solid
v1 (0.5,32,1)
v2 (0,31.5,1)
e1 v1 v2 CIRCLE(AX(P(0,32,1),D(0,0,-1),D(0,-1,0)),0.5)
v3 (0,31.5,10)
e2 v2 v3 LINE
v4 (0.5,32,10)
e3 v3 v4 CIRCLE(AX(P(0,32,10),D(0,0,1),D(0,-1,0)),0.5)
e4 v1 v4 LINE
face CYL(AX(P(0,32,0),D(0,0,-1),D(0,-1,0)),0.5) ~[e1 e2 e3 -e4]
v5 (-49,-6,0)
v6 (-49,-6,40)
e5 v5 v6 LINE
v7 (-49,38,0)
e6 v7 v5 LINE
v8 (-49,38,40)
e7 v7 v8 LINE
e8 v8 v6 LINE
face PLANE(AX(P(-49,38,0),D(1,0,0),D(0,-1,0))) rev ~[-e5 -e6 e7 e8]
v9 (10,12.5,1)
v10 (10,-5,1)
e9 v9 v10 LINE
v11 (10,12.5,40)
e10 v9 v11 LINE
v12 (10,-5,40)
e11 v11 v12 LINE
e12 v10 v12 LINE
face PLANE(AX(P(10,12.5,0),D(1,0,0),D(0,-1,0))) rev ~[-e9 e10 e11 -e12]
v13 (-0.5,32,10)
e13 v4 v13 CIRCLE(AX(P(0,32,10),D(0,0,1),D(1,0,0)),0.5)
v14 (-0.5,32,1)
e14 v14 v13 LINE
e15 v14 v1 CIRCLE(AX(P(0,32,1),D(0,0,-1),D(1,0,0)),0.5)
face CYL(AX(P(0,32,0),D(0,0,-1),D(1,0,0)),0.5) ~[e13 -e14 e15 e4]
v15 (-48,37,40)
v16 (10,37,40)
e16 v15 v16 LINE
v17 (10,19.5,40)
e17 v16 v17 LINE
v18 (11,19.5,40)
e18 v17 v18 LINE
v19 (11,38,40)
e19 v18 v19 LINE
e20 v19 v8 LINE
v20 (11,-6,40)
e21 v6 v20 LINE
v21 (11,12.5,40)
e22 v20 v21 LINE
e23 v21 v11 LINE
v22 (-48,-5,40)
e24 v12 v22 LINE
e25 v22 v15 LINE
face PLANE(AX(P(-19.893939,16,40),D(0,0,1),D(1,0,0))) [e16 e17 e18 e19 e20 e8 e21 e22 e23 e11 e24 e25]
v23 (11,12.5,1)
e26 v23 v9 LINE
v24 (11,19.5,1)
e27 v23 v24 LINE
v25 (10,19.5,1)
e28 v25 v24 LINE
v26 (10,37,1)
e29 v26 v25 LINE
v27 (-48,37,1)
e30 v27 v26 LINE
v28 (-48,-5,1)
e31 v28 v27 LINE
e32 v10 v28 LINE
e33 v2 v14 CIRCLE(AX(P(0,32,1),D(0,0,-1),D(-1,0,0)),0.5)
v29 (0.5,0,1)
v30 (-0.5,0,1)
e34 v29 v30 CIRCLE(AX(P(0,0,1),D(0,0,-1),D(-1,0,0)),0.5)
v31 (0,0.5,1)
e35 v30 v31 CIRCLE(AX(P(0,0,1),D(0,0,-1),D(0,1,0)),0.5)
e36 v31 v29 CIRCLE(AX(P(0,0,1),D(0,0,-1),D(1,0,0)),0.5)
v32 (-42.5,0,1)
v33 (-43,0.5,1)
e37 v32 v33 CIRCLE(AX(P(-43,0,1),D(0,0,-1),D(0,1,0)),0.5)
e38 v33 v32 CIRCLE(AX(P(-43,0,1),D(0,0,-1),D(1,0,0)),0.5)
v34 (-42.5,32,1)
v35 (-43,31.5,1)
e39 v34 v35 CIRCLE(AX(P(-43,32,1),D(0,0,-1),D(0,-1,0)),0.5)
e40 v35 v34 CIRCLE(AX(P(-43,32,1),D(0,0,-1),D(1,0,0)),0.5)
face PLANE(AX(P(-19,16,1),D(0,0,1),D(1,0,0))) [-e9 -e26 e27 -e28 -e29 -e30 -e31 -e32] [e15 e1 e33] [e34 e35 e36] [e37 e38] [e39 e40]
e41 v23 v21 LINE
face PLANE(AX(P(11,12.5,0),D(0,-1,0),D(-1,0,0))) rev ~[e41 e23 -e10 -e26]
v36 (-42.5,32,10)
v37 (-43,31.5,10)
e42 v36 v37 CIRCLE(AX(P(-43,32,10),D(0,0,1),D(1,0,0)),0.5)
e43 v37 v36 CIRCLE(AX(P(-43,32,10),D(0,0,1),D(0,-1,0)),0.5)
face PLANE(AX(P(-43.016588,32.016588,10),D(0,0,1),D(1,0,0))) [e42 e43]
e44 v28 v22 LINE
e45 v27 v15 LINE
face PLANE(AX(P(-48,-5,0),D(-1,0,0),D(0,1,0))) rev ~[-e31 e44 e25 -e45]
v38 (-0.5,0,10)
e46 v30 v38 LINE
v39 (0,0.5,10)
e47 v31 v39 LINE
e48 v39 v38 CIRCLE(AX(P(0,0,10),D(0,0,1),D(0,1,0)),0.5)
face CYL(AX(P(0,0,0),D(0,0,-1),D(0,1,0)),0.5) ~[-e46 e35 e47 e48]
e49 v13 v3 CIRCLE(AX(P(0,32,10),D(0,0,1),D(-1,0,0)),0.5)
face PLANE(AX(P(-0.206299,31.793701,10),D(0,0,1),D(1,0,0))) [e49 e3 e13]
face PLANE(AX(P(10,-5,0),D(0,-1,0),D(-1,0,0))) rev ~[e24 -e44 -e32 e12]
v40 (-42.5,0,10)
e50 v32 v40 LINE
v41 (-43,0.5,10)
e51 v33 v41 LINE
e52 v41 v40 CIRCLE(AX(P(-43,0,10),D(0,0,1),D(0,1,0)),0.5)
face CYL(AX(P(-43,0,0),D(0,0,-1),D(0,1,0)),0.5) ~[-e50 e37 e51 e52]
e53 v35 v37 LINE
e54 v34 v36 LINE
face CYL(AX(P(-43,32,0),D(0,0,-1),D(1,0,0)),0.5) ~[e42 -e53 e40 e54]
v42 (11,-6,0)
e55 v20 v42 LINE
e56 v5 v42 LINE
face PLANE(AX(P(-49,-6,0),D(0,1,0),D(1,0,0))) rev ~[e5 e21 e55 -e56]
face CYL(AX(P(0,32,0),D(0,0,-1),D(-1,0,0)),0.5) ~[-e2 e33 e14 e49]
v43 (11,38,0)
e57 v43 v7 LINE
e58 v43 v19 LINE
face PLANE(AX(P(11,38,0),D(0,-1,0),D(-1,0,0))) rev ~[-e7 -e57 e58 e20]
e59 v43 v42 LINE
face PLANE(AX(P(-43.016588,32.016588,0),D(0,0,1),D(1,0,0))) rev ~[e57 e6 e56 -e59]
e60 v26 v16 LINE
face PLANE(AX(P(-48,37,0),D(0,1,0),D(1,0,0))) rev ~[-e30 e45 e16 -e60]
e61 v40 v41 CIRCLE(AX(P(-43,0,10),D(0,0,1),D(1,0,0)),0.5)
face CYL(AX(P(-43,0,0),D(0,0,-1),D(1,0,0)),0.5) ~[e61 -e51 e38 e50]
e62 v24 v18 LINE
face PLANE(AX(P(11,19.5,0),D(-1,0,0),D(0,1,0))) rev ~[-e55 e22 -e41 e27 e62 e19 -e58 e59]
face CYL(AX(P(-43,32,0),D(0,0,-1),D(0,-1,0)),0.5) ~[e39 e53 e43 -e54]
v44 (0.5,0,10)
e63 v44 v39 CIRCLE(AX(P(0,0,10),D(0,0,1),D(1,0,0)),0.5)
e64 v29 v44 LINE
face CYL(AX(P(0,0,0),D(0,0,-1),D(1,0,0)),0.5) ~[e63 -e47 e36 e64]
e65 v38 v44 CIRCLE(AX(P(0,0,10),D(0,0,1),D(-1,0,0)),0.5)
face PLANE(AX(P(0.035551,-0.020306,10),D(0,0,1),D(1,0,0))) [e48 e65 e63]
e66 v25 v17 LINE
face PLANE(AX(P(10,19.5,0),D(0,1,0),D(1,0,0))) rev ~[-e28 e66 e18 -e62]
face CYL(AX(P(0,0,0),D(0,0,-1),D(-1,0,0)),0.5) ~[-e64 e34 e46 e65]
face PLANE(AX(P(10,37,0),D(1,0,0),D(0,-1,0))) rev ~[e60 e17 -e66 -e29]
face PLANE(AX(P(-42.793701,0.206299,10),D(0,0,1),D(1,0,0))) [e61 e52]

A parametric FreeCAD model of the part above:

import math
import FreeCAD as App
import Part
import Sketcher

V = App.Vector
Q = App.Units.Quantity


def add_polygon(sketch, points):
    """Adds a closed chain of lines whose ends are joined by coincident constraints."""
    first, n = sketch.GeometryCount, len(points)
    for a, b in zip(points, points[1:] + points[:1]):
        sketch.addGeometry(Part.LineSegment(App.Vector(*a, 0), App.Vector(*b, 0)), False)
    for i in range(n):
        sketch.addConstraint(Sketcher.Constraint("Coincident", first + i, 2, first + (i + 1) % n, 1))

doc = App.newDocument("Part")
params = doc.addObject("Spreadsheet::Sheet", "Params")
for row, (alias, value) in enumerate([
    ("sketch1_width", "58 mm"),
    ("sketch1_width2", "1 mm"),
    ("sketch1_width3", "60 mm"),
    ("sketch1_height", "42 mm"),
    ("sketch1_height2", "44 mm"),
    ("pad1_length", "40 mm"),
    ("sketch2_width", "60 mm"),
    ("sketch2_height", "44 mm"),
    ("pad2_length", "1 mm"),
    ("sketch3_radius", "0.5 mm"),
    ("pad3_length", "10 mm"),
], start=1):
    params.set(f"A{row}", alias)
    params.set(f"B{row}", "=" + value)
    params.setAlias(f"B{row}", alias)

body = doc.addObject("PartDesign::Body", "Body")

sketch1 = body.newObject("Sketcher::SketchObject", "Sketch")
sketch1.AttachmentSupport = (doc.getObject("XY_Plane"), [""])
sketch1.MapMode = "FlatFace"
add_polygon(sketch1, [(10, -5), (-48, -5), (-48, 37), (10, 37), (10, 19.5), (11, 19.5), (11, 38), (-49, 38), (-49, -6), (11, -6), (11, 12.5), (10, 12.5)])
sketch1.addConstraint([
    Sketcher.Constraint("Horizontal", 0),
    Sketcher.Constraint("Vertical", 1),
    Sketcher.Constraint("Horizontal", 2),
    Sketcher.Constraint("Vertical", 3),
    Sketcher.Constraint("Horizontal", 4),
    Sketcher.Constraint("Vertical", 5),
    Sketcher.Constraint("Horizontal", 6),
    Sketcher.Constraint("Vertical", 7),
    Sketcher.Constraint("Horizontal", 8),
    Sketcher.Constraint("Vertical", 9),
    Sketcher.Constraint("Horizontal", 10),
    Sketcher.Constraint("Vertical", 11),
    Sketcher.Constraint("Vertical", 5, 2, 8, 2),
    Sketcher.Constraint("Vertical", 3, 2, 10, 2),
    Sketcher.Constraint("Equal", 5, 9),
    Sketcher.Constraint("Equal", 3, 11),
    Sketcher.Constraint("DistanceX", 0, 2, 0, 1, Q("58 mm")),
    Sketcher.Constraint("DistanceX", 4, 1, 4, 2, Q("1 mm")),
    Sketcher.Constraint("DistanceX", 6, 2, 6, 1, Q("60 mm")),
    Sketcher.Constraint("DistanceY", 1, 1, 1, 2, Q("42 mm")),
    Sketcher.Constraint("DistanceY", 7, 2, 7, 1, Q("44 mm")),
    Sketcher.Constraint("DistanceY", 3, 2, 3, 1, Q("17.5 mm")),
    Sketcher.Constraint("DistanceX", 0, 2, -1, 1, Q("48 mm")),
    Sketcher.Constraint("DistanceY", 0, 2, -1, 1, Q("5 mm")),
])
sketch1.setExpression("Constraints[28]", "Params.sketch1_width")
sketch1.setExpression("Constraints[29]", "Params.sketch1_width2")
sketch1.setExpression("Constraints[30]", "Params.sketch1_width3")
sketch1.setExpression("Constraints[31]", "Params.sketch1_height")
sketch1.setExpression("Constraints[32]", "Params.sketch1_height2")
pad1 = body.newObject("PartDesign::Pad", "Pad")
pad1.Profile = sketch1
pad1.setExpression("Length", "Params.pad1_length")

sketch2 = body.newObject("Sketcher::SketchObject", "Sketch001")
sketch2.AttachmentSupport = (doc.getObject("XY_Plane"), [""])
sketch2.MapMode = "FlatFace"
add_polygon(sketch2, [(11, 38), (-49, 38), (-49, -6), (11, -6)])
sketch2.addConstraint([
    Sketcher.Constraint("Horizontal", 0),
    Sketcher.Constraint("Vertical", 1),
    Sketcher.Constraint("Horizontal", 2),
    Sketcher.Constraint("Vertical", 3),
    Sketcher.Constraint("DistanceX", 0, 2, 0, 1, Q("60 mm")),
    Sketcher.Constraint("DistanceY", 1, 2, 1, 1, Q("44 mm")),
    Sketcher.Constraint("DistanceX", 0, 2, -1, 1, Q("49 mm")),
    Sketcher.Constraint("DistanceY", -1, 1, 0, 2, Q("38 mm")),
])
sketch2.setExpression("Constraints[8]", "Params.sketch2_width")
sketch2.setExpression("Constraints[9]", "Params.sketch2_height")
pad2 = body.newObject("PartDesign::Pad", "Pad001")
pad2.Profile = sketch2
pad2.setExpression("Length", "Params.pad2_length")

sketch3 = body.newObject("Sketcher::SketchObject", "Sketch002")
sketch3.AttachmentSupport = (doc.getObject("XY_Plane"), [""])
sketch3.MapMode = "FlatFace"
sketch3.addGeometry([
    Part.ArcOfCircle(Part.Circle(V(-43, 32, 0), V(0, 0, 1), 0.5), math.radians(0), math.radians(270)),
    Part.ArcOfCircle(Part.Circle(V(-43, 32, 0), V(0, 0, 1), 0.5), math.radians(-90), math.radians(0)),
    Part.ArcOfCircle(Part.Circle(V(0, 32, 0), V(0, 0, 1), 0.5), math.radians(180), math.radians(270)),
    Part.ArcOfCircle(Part.Circle(V(0, 32, 0), V(0, 0, 1), 0.5), math.radians(-90), math.radians(0)),
    Part.ArcOfCircle(Part.Circle(V(0, 32, 0), V(0, 0, 1), 0.5), math.radians(0), math.radians(180)),
    Part.ArcOfCircle(Part.Circle(V(0, 0, 0), V(0, 0, 1), 0.5), math.radians(180), math.radians(360)),
    Part.ArcOfCircle(Part.Circle(V(0, 0, 0), V(0, 0, 1), 0.5), math.radians(0), math.radians(90)),
    Part.ArcOfCircle(Part.Circle(V(0, 0, 0), V(0, 0, 1), 0.5), math.radians(90), math.radians(180)),
    Part.ArcOfCircle(Part.Circle(V(-43, 0, 0), V(0, 0, 1), 0.5), math.radians(0), math.radians(90)),
    Part.ArcOfCircle(Part.Circle(V(-43, 0, 0), V(0, 0, 1), 0.5), math.radians(90), math.radians(360)),
], False)
sketch3.addConstraint([
    Sketcher.Constraint("Tangent", 0, 1, 1, 2),
    Sketcher.Constraint("Coincident", 1, 1, 0, 2),
    Sketcher.Constraint("Tangent", 2, 2, 3, 1),
    Sketcher.Constraint("Tangent", 3, 2, 4, 1),
    Sketcher.Constraint("Tangent", 4, 2, 2, 1),
    Sketcher.Constraint("Tangent", 5, 2, 6, 1),
    Sketcher.Constraint("Tangent", 6, 2, 7, 1),
    Sketcher.Constraint("Tangent", 7, 2, 5, 1),
    Sketcher.Constraint("Tangent", 8, 1, 9, 2),
    Sketcher.Constraint("Coincident", 9, 1, 8, 2),
    Sketcher.Constraint("Coincident", 5, 3, -1, 1),
    Sketcher.Constraint("Equal", 1, 2),
    Sketcher.Constraint("Equal", 4, 5),
    Sketcher.Constraint("Equal", 7, 8),
    Sketcher.Constraint("Symmetric", 3, 2, 4, 2, -2),
    Sketcher.Constraint("PointOnObject", 8, 3, -1),
    Sketcher.Constraint("PointOnObject", 2, 2, -2),
    Sketcher.Constraint("PointOnObject", 5, 2, -1),
    Sketcher.Constraint("PointOnObject", 6, 2, -2),
    Sketcher.Constraint("PointOnObject", 7, 2, -1),
    Sketcher.Constraint("PointOnObject", 8, 1, -1),
    Sketcher.Constraint("Horizontal", 1, 3, 2, 3),
    Sketcher.Constraint("Horizontal", 4, 3, 0, 1),
    Sketcher.Constraint("Horizontal", 0, 1, 3, 2),
    Sketcher.Constraint("Vertical", 1, 3, 8, 3),
    Sketcher.Constraint("Vertical", 9, 3, 1, 1),
    Sketcher.Constraint("Vertical", 1, 1, 9, 1),
    Sketcher.Constraint("Radius", 0, Q("0.5 mm")),
    Sketcher.Constraint("DistanceX", 0, 3, -1, 1, Q("43 mm")),
    Sketcher.Constraint("DistanceY", -1, 1, 0, 3, Q("32 mm")),
])
sketch3.setExpression("Constraints[27]", "Params.sketch3_radius")
pad3 = body.newObject("PartDesign::Pad", "Pad002")
pad3.Profile = sketch3
pad3.setExpression("Length", "Params.pad3_length")

doc.recompute()
